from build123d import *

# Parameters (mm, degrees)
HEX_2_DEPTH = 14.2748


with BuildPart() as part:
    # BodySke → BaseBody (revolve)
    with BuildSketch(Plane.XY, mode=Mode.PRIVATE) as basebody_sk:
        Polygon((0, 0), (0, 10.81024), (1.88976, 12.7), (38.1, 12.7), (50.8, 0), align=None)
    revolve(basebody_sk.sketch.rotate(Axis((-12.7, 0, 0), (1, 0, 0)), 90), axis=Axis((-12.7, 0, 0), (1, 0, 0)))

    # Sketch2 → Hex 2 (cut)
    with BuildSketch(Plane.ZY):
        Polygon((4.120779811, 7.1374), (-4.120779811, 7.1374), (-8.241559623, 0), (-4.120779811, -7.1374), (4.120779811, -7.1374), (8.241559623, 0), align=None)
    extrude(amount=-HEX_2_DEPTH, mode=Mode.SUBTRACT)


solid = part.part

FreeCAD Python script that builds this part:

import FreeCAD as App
import Part
import Sketcher

V = App.Vector
Q = App.Units.Quantity

doc = App.newDocument("Part")
params = doc.addObject("Spreadsheet::Sheet", "Params")
for row, (alias, value) in enumerate([
    ("sketch1_width", "2 in"),
    ("revolution_angle", "360 deg"),
    ("pocket1_length", "0.562 in"),
], start=1):
    params.set(f"A{row}", alias)
    params.set(f"B{row}", "=" + value)
    params.setAlias(f"B{row}", alias)

body = doc.addObject("PartDesign::Body", "Body")

sketch1 = doc.addObject("Sketcher::SketchObject", "Sketch")
body.addObject(sketch1)
sketch1.AttachmentSupport = (doc.XY_Plane, [""])
sketch1.MapMode = "FlatFace"
sketch1.addGeometry([
    Part.LineSegment(V(0, 10.8, 0), V(0, 0, 0)),
    Part.LineSegment(V(0, 0, 0), V(50.8, 0, 0)),
    Part.LineSegment(V(50.8, 0, 0), V(38.1, 12.7, 0)),
    Part.LineSegment(V(38.1, 12.7, 0), V(1.9, 12.7, 0)),
    Part.LineSegment(V(1.9, 12.7, 0), V(0, 10.8, 0)),
], False)
sketch1.addConstraint([
    Sketcher.Constraint("Coincident", 0, 2, 1, 1),
    Sketcher.Constraint("Coincident", 1, 2, 2, 1),
    Sketcher.Constraint("Coincident", 2, 2, 3, 1),
    Sketcher.Constraint("Coincident", 3, 2, 4, 1),
    Sketcher.Constraint("Coincident", 4, 2, 0, 1),
    Sketcher.Constraint("Vertical", 0),
    Sketcher.Constraint("Horizontal", 1),
    Sketcher.Constraint("Horizontal", 3),
    Sketcher.Constraint("Coincident", 0, 2, -1, 1),
    Sketcher.Constraint("Perpendicular", 2, 4),
    Sketcher.Constraint("DistanceX", 1, 1, 1, 2, Q("2 in")),
    Sketcher.Constraint("Angle", 2, Q("135 deg")),
    Sketcher.Constraint("DistanceX", -1, 1, 2, 2, Q("1.5 in")),
    Sketcher.Constraint("DistanceX", 3, 2, 3, 1, Q("1.4256 in")),
])
sketch1.setExpression("Constraints[10]", "Params.sketch1_width")
revolution = doc.addObject("PartDesign::Revolution", "Revolution")
body.addObject(revolution)
revolution.Profile = sketch1
revolution.ReferenceAxis = (sketch1, ["H_Axis"])
revolution.setExpression("Angle", "Params.revolution_angle")

sketch2 = doc.addObject("Sketcher::SketchObject", "Sketch001")
body.addObject(sketch2)
sketch2.AttachmentSupport = (doc.YZ_Plane, [""])
sketch2.MapMode = "FlatFace"
sketch2.addGeometry([
    Part.LineSegment(V(7, 4, 0), V(7, -4, 0)),
    Part.LineSegment(V(7, -4, 0), V(0, -8, 0)),
    Part.LineSegment(V(0, -8, 0), V(-7, -4, 0)),
    Part.LineSegment(V(-7, -4, 0), V(-7, 4, 0)),
    Part.LineSegment(V(-7, 4, 0), V(0, 8, 0)),
    Part.LineSegment(V(0, 8, 0), V(7, 4, 0)),
], False)
sketch2.addConstraint([
    Sketcher.Constraint("Coincident", 0, 2, 1, 1),
    Sketcher.Constraint("Coincident", 1, 2, 2, 1),
    Sketcher.Constraint("Coincident", 2, 2, 3, 1),
    Sketcher.Constraint("Coincident", 3, 2, 4, 1),
    Sketcher.Constraint("Coincident", 4, 2, 5, 1),
    Sketcher.Constraint("Coincident", 5, 2, 0, 1),
    Sketcher.Constraint("Vertical", 0),
    Sketcher.Constraint("Vertical", 3),
    Sketcher.Constraint("Symmetric", 0, 2, 3, 2, -1, 1),
    Sketcher.Constraint("Symmetric", 1, 2, 4, 2, -1, 1),
    Sketcher.Constraint("PointOnObject", 1, 2, -2),
    Sketcher.Constraint("Parallel", 2, 5),
    Sketcher.Constraint("Horizontal", 0, 2, 2, 2),
    Sketcher.Constraint("Angle", 1, Q("-150 deg")),
    Sketcher.Constraint("DistanceX", -1, 1, 0, 2, Q("0.281 in")),
    Sketcher.Constraint("DistanceY", 0, 2, 0, 1, Q("8.24156 mm")),
])
pocket1 = doc.addObject("PartDesign::Pocket", "Pocket")
body.addObject(pocket1)
pocket1.Profile = sketch2
pocket1.setExpression("Length", "Params.pocket1_length")
pocket1.Reversed = True

doc.recompute()
